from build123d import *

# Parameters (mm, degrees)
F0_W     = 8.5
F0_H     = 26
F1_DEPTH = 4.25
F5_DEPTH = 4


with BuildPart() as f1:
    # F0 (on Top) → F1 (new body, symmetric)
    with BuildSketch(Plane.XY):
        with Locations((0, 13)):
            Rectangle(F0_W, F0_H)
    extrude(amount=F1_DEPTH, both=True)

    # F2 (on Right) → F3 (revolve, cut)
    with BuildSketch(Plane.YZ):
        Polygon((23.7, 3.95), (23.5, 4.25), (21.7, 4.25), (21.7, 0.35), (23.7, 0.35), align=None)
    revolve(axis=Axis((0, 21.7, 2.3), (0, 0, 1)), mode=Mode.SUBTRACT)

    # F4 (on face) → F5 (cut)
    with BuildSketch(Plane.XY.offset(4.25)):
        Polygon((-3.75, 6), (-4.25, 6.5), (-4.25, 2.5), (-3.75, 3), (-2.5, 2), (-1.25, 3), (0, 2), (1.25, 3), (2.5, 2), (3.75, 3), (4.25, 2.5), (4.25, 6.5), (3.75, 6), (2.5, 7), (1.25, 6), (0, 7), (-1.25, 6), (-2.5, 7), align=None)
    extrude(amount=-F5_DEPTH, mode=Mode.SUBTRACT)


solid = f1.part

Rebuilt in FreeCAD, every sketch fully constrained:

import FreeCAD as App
import Part
import Sketcher
from FreeCAD import Vector

doc = App.newDocument("Part")
body = doc.addObject("PartDesign::Body", "Body")

# Sketch on XY plane
sketch1 = body.newObject("Sketcher::SketchObject", "Sketch")
sketch1.AttachmentSupport = (doc.getObject("XY_Plane"), [""])
sketch1.MapMode = "FlatFace"
sketch1.addGeometry(Part.LineSegment(Vector(-4, 26, 0), Vector(-4, 0, 0)), False)
sketch1.addGeometry(Part.LineSegment(Vector(-4, 0, 0), Vector(4, 0, 0)), False)
sketch1.addGeometry(Part.LineSegment(Vector(4, 0, 0), Vector(4, 26, 0)), False)
sketch1.addGeometry(Part.LineSegment(Vector(4, 26, 0), Vector(-4, 26, 0)), False)
sketch1.addConstraint(Sketcher.Constraint("Coincident", 0, 2, 1, 1))
sketch1.addConstraint(Sketcher.Constraint("Coincident", 1, 2, 2, 1))
sketch1.addConstraint(Sketcher.Constraint("Coincident", 2, 2, 3, 1))
sketch1.addConstraint(Sketcher.Constraint("Coincident", 3, 2, 0, 1))
sketch1.addConstraint(Sketcher.Constraint("Vertical", 0))
sketch1.addConstraint(Sketcher.Constraint("Horizontal", 1))
sketch1.addConstraint(Sketcher.Constraint("Vertical", 2))
sketch1.addConstraint(Sketcher.Constraint("Horizontal", 3))
sketch1.addConstraint(Sketcher.Constraint("Symmetric", 0, 2, 1, 2, -1, 1))
sketch1.addConstraint(Sketcher.Constraint("DistanceY", 0, 2, 0, 1, 26.0))
sketch1.addConstraint(Sketcher.Constraint("DistanceX", 1, 1, 1, 2, 8.5))
pad1 = body.newObject("PartDesign::Pad", "Pad")
pad1.Profile = sketch1
pad1.Length = 8.5
pad1.Midplane = True

# Sketch on YZ plane
sketch2 = body.newObject("Sketcher::SketchObject", "Sketch001")
sketch2.AttachmentSupport = (doc.getObject("YZ_Plane"), [""])
sketch2.MapMode = "FlatFace"
sketch2.addGeometry(Part.LineSegment(Vector(23.7, 3.95, 0), Vector(23.5, 4.25, 0)), False)
sketch2.addGeometry(Part.LineSegment(Vector(23.5, 4.25, 0), Vector(21.7, 4.25, 0)), False)
sketch2.addGeometry(Part.LineSegment(Vector(21.7, 4.25, 0), Vector(21.7, 0.35, 0)), False)
sketch2.addGeometry(Part.LineSegment(Vector(21.7, 0.35, 0), Vector(23.7, 0.35, 0)), False)
sketch2.addGeometry(Part.LineSegment(Vector(23.7, 0.35, 0), Vector(23.7, 3.95, 0)), False)
sketch2.addGeometry(Part.LineSegment(Vector(21.7, 0.35, 0), Vector(21.7, 4.25, 0)), True)  # axis
sketch2.addConstraint(Sketcher.Constraint("Coincident", 0, 2, 1, 1))
sketch2.addConstraint(Sketcher.Constraint("Coincident", 1, 2, 2, 1))
sketch2.addConstraint(Sketcher.Constraint("Coincident", 2, 2, 3, 1))
sketch2.addConstraint(Sketcher.Constraint("Coincident", 3, 2, 4, 1))
sketch2.addConstraint(Sketcher.Constraint("Coincident", 4, 2, 0, 1))
sketch2.addConstraint(Sketcher.Constraint("Horizontal", 1))
sketch2.addConstraint(Sketcher.Constraint("Vertical", 2))
sketch2.addConstraint(Sketcher.Constraint("Horizontal", 3))
sketch2.addConstraint(Sketcher.Constraint("Vertical", 4))
sketch2.addConstraint(Sketcher.Constraint("Vertical", 5))
sketch2.addConstraint(Sketcher.Constraint("Coincident", 5, 1, 2, 2))
sketch2.addConstraint(Sketcher.Constraint("Horizontal", 0, 2, 5, 2))
sketch2.addConstraint(Sketcher.Constraint("DistanceX", 3, 1, 3, 2, 2.0))
sketch2.addConstraint(Sketcher.Constraint("DistanceX", 1, 2, 1, 1, 1.8))
sketch2.addConstraint(Sketcher.Constraint("DistanceY", 2, 2, 2, 1, 3.9))
sketch2.addConstraint(Sketcher.Constraint("DistanceY", 4, 1, 4, 2, 3.6))
sketch2.addConstraint(Sketcher.Constraint("DistanceX", -1, 1, 0, 2, 23.5))
sketch2.addConstraint(Sketcher.Constraint("DistanceY", -1, 1, 0, 2, 4.25))
groove = body.newObject("PartDesign::Groove", "Groove")
groove.Profile = sketch2
groove.ReferenceAxis = (sketch2, ["Axis0"])
groove.Angle = 360

# Sketch on XY plane
sketch3 = body.newObject("Sketcher::SketchObject", "Sketch002")
sketch3.AttachmentSupport = (doc.getObject("XY_Plane"), [""])
sketch3.MapMode = "FlatFace"
sketch3.AttachmentOffset = App.Placement(Vector(0, 0, 4.25), App.Rotation())
sketch3.addGeometry(Part.LineSegment(Vector(-3.8, 6, 0), Vector(-4.2, 6.5, 0)), False)
sketch3.addGeometry(Part.LineSegment(Vector(-4.2, 6.5, 0), Vector(-4.2, 2.5, 0)), False)
sketch3.addGeometry(Part.LineSegment(Vector(-4.2, 2.5, 0), Vector(-3.8, 3, 0)), False)
sketch3.addGeometry(Part.LineSegment(Vector(-3.8, 3, 0), Vector(-2.5, 2, 0)), False)
sketch3.addGeometry(Part.LineSegment(Vector(-2.5, 2, 0), Vector(-1.2, 3, 0)), False)
sketch3.addGeometry(Part.LineSegment(Vector(-1.2, 3, 0), Vector(0, 2, 0)), False)
sketch3.addGeometry(Part.LineSegment(Vector(0, 2, 0), Vector(1.2, 3, 0)), False)
sketch3.addGeometry(Part.LineSegment(Vector(1.2, 3, 0), Vector(2.5, 2, 0)), False)
sketch3.addGeometry(Part.LineSegment(Vector(2.5, 2, 0), Vector(3.8, 3, 0)), False)
sketch3.addGeometry(Part.LineSegment(Vector(3.8, 3, 0), Vector(4.2, 2.5, 0)), False)
sketch3.addGeometry(Part.LineSegment(Vector(4.2, 2.5, 0), Vector(4.2, 6.5, 0)), False)
sketch3.addGeometry(Part.LineSegment(Vector(4.2, 6.5, 0), Vector(3.8, 6, 0)), False)
sketch3.addGeometry(Part.LineSegment(Vector(3.8, 6, 0), Vector(2.5, 7, 0)), False)
sketch3.addGeometry(Part.LineSegment(Vector(2.5, 7, 0), Vector(1.2, 6, 0)), False)
sketch3.addGeometry(Part.LineSegment(Vector(1.2, 6, 0), Vector(0, 7, 0)), False)
sketch3.addGeometry(Part.LineSegment(Vector(0, 7, 0), Vector(-1.2, 6, 0)), False)
sketch3.addGeometry(Part.LineSegment(Vector(-1.2, 6, 0), Vector(-2.5, 7, 0)), False)
sketch3.addGeometry(Part.LineSegment(Vector(-2.5, 7, 0), Vector(-3.8, 6, 0)), False)
sketch3.addConstraint(Sketcher.Constraint("Coincident", 0, 2, 1, 1))
sketch3.addConstraint(Sketcher.Constraint("Coincident", 1, 2, 2, 1))
sketch3.addConstraint(Sketcher.Constraint("Coincident", 2, 2, 3, 1))
sketch3.addConstraint(Sketcher.Constraint("Coincident", 3, 2, 4, 1))
sketch3.addConstraint(Sketcher.Constraint("Coincident", 4, 2, 5, 1))
sketch3.addConstraint(Sketcher.Constraint("Coincident", 5, 2, 6, 1))
sketch3.addConstraint(Sketcher.Constraint("Coincident", 6, 2, 7, 1))
sketch3.addConstraint(Sketcher.Constraint("Coincident", 7, 2, 8, 1))
sketch3.addConstraint(Sketcher.Constraint("Coincident", 8, 2, 9, 1))
sketch3.addConstraint(Sketcher.Constraint("Coincident", 9, 2, 10, 1))
sketch3.addConstraint(Sketcher.Constraint("Coincident", 10, 2, 11, 1))
sketch3.addConstraint(Sketcher.Constraint("Coincident", 11, 2, 12, 1))
sketch3.addConstraint(Sketcher.Constraint("Coincident", 12, 2, 13, 1))
sketch3.addConstraint(Sketcher.Constraint("Coincident", 13, 2, 14, 1))
sketch3.addConstraint(Sketcher.Constraint("Coincident", 14, 2, 15, 1))
sketch3.addConstraint(Sketcher.Constraint("Coincident", 15, 2, 16, 1))
sketch3.addConstraint(Sketcher.Constraint("Coincident", 16, 2, 17, 1))
sketch3.addConstraint(Sketcher.Constraint("Coincident", 17, 2, 0, 1))
sketch3.addConstraint(Sketcher.Constraint("Vertical", 1))
sketch3.addConstraint(Sketcher.Constraint("Vertical", 10))
sketch3.addConstraint(Sketcher.Constraint("Symmetric", 4, 2, 6, 2, -2))
sketch3.addConstraint(Sketcher.Constraint("Symmetric", 3, 2, 7, 2, -2))
sketch3.addConstraint(Sketcher.Constraint("Symmetric", 2, 2, 8, 2, -2))
sketch3.addConstraint(Sketcher.Constraint("Symmetric", 1, 2, 9, 2, -2))
sketch3.addConstraint(Sketcher.Constraint("Symmetric", 13, 2, 15, 2, -2))
sketch3.addConstraint(Sketcher.Constraint("Symmetric", 12, 2, 16, 2, -2))
sketch3.addConstraint(Sketcher.Constraint("Symmetric", 11, 2, 17, 2, -2))
sketch3.addConstraint(Sketcher.Constraint("PointOnObject", 5, 2, -2))
sketch3.addConstraint(Sketcher.Constraint("PointOnObject", 14, 2, -2))
sketch3.addConstraint(Sketcher.Constraint("Perpendicular", 0, 2))
sketch3.addConstraint(Sketcher.Constraint("Parallel", 3, 5))
sketch3.addConstraint(Sketcher.Constraint("Parallel", 4, 6))
sketch3.addConstraint(Sketcher.Constraint("Perpendicular", 2, 9))
sketch3.addConstraint(Sketcher.Constraint("Perpendicular", 9, 11))
sketch3.addConstraint(Sketcher.Constraint("Parallel", 7, 12))
sketch3.addConstraint(Sketcher.Constraint("Parallel", 8, 13))
sketch3.addConstraint(Sketcher.Constraint("Parallel", 12, 14))
sketch3.addConstraint(Sketcher.Constraint("Horizontal", 2, 2, 4, 2))
sketch3.addConstraint(Sketcher.Constraint("Horizontal", 3, 2, 5, 2))
sketch3.addConstraint(Sketcher.Constraint("Horizontal", 11, 2, 13, 2))
sketch3.addConstraint(Sketcher.Constraint("Horizontal", 12, 2, 14, 2))
sketch3.addConstraint(Sketcher.Constraint("Vertical", 8, 2, 11, 2))
sketch3.addConstraint(Sketcher.Constraint("DistanceY", 1, 2, 1, 1, 4.0))
sketch3.addConstraint(Sketcher.Constraint("DistanceY", -1, 1, 2, 2, 3.0))
sketch3.addConstraint(Sketcher.Constraint("DistanceY", -1, 1, 3, 2, 2.0))
sketch3.addConstraint(Sketcher.Constraint("DistanceY", -1, 1, 11, 2, 6.0))
sketch3.addConstraint(Sketcher.Constraint("DistanceX", 1, 2, 4, 2, 3.0))
pocket1 = body.newObject("PartDesign::Pocket", "Pocket")
pocket1.Profile = sketch3
pocket1.Length = 4

doc.recompute()
